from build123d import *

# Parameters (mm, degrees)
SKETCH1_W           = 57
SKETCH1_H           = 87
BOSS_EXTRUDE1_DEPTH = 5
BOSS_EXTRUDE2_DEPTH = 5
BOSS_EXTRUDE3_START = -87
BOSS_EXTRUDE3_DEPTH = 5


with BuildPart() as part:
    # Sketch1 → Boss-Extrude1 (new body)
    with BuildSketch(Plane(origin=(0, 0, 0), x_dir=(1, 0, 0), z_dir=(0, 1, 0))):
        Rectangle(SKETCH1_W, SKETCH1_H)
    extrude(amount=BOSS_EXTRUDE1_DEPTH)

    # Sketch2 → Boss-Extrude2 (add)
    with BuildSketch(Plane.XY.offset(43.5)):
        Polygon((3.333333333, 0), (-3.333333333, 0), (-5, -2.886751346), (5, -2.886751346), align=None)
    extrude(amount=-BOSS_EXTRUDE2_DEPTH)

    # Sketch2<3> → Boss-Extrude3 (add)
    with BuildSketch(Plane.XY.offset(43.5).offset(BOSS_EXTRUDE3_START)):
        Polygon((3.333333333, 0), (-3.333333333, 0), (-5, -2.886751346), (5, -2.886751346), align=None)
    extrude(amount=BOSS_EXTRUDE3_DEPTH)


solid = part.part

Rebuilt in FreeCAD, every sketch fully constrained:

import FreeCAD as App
import Part
import Sketcher

V = App.Vector
Q = App.Units.Quantity


def add_polygon(sketch, points):
    """Adds a closed chain of lines whose ends are joined by coincident constraints."""
    first, n = sketch.GeometryCount, len(points)
    for a, b in zip(points, points[1:] + points[:1]):
        sketch.addGeometry(Part.LineSegment(App.Vector(*a, 0), App.Vector(*b, 0)), False)
    for i in range(n):
        sketch.addConstraint(Sketcher.Constraint("Coincident", first + i, 2, first + (i + 1) % n, 1))

doc = App.newDocument("Part")
params = doc.addObject("Spreadsheet::Sheet", "Params")
for row, (alias, value) in enumerate([
    ("sketch1_width", "57 mm"),
    ("sketch1_height", "87 mm"),
    ("pad1_length", "5 mm"),
    ("sketch2_width", "10 mm"),
    ("pad2_length", "5 mm"),
    ("sketch3_width", "10 mm"),
    ("pad3_length", "5 mm"),
], start=1):
    params.set(f"A{row}", alias)
    params.set(f"B{row}", "=" + value)
    params.setAlias(f"B{row}", alias)

body = doc.addObject("PartDesign::Body", "Body")

# Sketch on XZ plane
sketch1 = body.newObject("Sketcher::SketchObject", "Sketch")
sketch1.AttachmentSupport = (doc.getObject("XZ_Plane"), [""])
sketch1.MapMode = "FlatFace"
add_polygon(sketch1, [(-28.5, -43.5), (-28.5, 43.5), (28.5, 43.5), (28.5, -43.5)])  # lines 0-3
sketch1.addConstraint([
    Sketcher.Constraint("Vertical", 0),
    Sketcher.Constraint("Horizontal", 1),
    Sketcher.Constraint("Vertical", 2),
    Sketcher.Constraint("Horizontal", 3),
    Sketcher.Constraint("Symmetric", 0, 2, 2, 2, -1, 1),
    Sketcher.Constraint("DistanceX", 1, 1, 1, 2, 57.0),
    Sketcher.Constraint("DistanceY", 0, 1, 0, 2, 87.0),
])
sketch1.setExpression("Constraints[9]", "Params.sketch1_width")
sketch1.setExpression("Constraints[10]", "Params.sketch1_height")
pad1 = body.newObject("PartDesign::Pad", "Pad")
pad1.Profile = sketch1
pad1.setExpression("Length", "Params.pad1_length")
pad1.Reversed = True

# Sketch on XY plane
sketch2 = body.newObject("Sketcher::SketchObject", "Sketch001")
sketch2.AttachmentSupport = (doc.getObject("XY_Plane"), [""])
sketch2.MapMode = "FlatFace"
sketch2.AttachmentOffset = App.Placement(V(0, 0, 43.5), App.Rotation())
add_polygon(sketch2, [(3.333333, 0), (-3.333333, 0), (-5, -2.886751), (5, -2.886751)])  # lines 0-3
sketch2.addConstraint([
    Sketcher.Constraint("Horizontal", 0),
    Sketcher.Constraint("Horizontal", 2),
    Sketcher.Constraint("Symmetric", 0, 2, 3, 2, -1, 1),
    Sketcher.Constraint("Equal", 1, 3),
    Sketcher.Constraint("DistanceX", 2, 1, 2, 2, 10.0),
    Sketcher.Constraint("Angle", 1, Q("-120 deg")),
    Sketcher.Constraint("DistanceX", 0, 2, 0, 1, 6.666667),
])
sketch2.setExpression("Constraints[8]", "Params.sketch2_width")
pad2 = body.newObject("PartDesign::Pad", "Pad001")
pad2.Profile = sketch2
pad2.setExpression("Length", "Params.pad2_length")
pad2.Reversed = True

# Sketch on XY plane
sketch3 = body.newObject("Sketcher::SketchObject", "Sketch002")
sketch3.AttachmentSupport = (doc.getObject("XY_Plane"), [""])
sketch3.MapMode = "FlatFace"
sketch3.AttachmentOffset = App.Placement(V(0, 0, -43.5), App.Rotation())
add_polygon(sketch3, [(3.333333, 0), (-3.333333, 0), (-5, -2.886751), (5, -2.886751)])  # lines 0-3
sketch3.addConstraint([
    Sketcher.Constraint("Horizontal", 0),
    Sketcher.Constraint("Horizontal", 2),
    Sketcher.Constraint("Symmetric", 0, 2, 3, 2, -1, 1),
    Sketcher.Constraint("Equal", 1, 3),
    Sketcher.Constraint("DistanceX", 2, 1, 2, 2, 10.0),
    Sketcher.Constraint("Angle", 1, Q("-120 deg")),
    Sketcher.Constraint("DistanceX", 0, 2, 0, 1, 6.666667),
])
sketch3.setExpression("Constraints[8]", "Params.sketch3_width")
pad3 = body.newObject("PartDesign::Pad", "Pad002")
pad3.Profile = sketch3
pad3.setExpression("Length", "Params.pad3_length")

doc.recompute()
